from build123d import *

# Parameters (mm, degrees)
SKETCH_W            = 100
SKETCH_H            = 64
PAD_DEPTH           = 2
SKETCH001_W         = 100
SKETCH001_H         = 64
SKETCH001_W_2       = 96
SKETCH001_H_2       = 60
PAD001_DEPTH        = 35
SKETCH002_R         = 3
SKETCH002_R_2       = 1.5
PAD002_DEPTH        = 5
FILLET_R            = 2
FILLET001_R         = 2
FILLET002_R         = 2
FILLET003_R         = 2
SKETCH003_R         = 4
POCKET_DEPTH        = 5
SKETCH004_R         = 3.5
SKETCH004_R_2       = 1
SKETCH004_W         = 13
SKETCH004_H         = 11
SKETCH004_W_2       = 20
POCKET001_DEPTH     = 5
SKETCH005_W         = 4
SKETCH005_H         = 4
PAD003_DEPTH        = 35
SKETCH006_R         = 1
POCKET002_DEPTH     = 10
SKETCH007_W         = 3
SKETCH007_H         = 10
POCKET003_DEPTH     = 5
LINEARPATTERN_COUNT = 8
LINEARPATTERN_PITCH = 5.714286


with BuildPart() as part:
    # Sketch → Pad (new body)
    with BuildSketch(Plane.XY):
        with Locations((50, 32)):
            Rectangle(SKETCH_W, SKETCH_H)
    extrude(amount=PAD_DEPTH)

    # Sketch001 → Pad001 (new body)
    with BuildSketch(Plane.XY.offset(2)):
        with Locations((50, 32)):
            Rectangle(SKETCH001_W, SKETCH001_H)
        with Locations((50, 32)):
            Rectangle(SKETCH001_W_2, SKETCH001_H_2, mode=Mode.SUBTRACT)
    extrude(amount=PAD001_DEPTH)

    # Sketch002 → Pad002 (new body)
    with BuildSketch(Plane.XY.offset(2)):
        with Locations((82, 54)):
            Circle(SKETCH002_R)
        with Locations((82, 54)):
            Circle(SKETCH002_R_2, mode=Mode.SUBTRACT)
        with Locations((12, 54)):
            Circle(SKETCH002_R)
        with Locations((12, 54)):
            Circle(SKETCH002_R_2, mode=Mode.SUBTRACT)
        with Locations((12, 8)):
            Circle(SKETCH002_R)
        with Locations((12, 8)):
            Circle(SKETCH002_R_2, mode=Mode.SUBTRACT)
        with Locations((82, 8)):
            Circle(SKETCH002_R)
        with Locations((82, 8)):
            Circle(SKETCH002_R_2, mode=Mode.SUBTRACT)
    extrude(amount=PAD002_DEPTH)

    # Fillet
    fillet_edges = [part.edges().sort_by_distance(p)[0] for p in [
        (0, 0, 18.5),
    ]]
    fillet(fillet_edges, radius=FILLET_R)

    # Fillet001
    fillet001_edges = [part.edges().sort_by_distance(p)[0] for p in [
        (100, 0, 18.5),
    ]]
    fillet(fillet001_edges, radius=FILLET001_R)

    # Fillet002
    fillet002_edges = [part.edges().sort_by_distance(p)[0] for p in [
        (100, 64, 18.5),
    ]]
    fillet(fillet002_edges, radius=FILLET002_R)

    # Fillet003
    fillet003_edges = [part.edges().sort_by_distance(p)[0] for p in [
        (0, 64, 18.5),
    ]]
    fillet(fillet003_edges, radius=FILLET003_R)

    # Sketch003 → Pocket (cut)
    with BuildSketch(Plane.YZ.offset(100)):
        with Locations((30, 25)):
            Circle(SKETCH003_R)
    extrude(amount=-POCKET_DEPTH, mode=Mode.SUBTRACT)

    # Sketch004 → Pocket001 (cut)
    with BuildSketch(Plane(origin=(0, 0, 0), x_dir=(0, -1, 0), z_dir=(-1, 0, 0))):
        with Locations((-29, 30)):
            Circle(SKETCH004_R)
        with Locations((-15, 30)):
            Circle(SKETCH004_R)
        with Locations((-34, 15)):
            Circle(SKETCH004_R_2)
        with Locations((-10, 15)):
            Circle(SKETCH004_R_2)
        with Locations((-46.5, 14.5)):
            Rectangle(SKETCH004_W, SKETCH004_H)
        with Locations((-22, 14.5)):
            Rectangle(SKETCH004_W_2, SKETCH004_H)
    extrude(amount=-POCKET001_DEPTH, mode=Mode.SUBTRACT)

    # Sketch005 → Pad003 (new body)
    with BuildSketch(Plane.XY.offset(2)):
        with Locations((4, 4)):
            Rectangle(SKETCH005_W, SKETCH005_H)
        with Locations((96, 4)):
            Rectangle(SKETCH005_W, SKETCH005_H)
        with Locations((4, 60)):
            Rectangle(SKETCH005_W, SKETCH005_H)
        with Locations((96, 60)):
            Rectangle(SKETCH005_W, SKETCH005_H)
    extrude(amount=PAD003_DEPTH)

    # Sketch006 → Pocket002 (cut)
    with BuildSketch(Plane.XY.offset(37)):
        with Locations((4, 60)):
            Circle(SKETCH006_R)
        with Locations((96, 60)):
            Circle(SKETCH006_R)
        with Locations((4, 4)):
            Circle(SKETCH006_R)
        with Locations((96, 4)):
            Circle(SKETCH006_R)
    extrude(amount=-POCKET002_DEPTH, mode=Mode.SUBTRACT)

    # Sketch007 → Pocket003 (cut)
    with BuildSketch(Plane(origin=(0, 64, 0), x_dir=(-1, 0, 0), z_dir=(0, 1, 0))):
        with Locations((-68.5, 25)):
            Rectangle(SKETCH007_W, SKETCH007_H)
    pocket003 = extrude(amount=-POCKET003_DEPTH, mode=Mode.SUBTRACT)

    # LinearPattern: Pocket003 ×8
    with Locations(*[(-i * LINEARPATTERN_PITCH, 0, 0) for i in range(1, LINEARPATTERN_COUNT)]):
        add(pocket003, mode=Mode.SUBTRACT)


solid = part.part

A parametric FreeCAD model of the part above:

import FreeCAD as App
import Part
import Sketcher
from FreeCAD import Vector


def edges_at(feature, points):
    """Names of the edges that pass closest to the given points."""
    edges = feature.Shape.Edges
    near = lambda p: min(range(len(edges)), key=lambda i: edges[i].distToShape(Part.Vertex(*p))[0])
    return sorted({f"Edge{near(p) + 1}" for p in points})

doc = App.newDocument("Part")
body = doc.addObject("PartDesign::Body", "Body")

# Sketch on XY plane
sketch1 = doc.addObject("Sketcher::SketchObject", "Sketch")
body.addObject(sketch1)
sketch1.AttachmentSupport = (doc.XY_Plane, [""])
sketch1.MapMode = "FlatFace"
sketch1.addGeometry([
    Part.LineSegment(Vector(0, 64, 0), Vector(0, 0, 0)),
    Part.LineSegment(Vector(0, 0, 0), Vector(100, 0, 0)),
    Part.LineSegment(Vector(100, 0, 0), Vector(100, 64, 0)),
    Part.LineSegment(Vector(100, 64, 0), Vector(0, 64, 0)),
], False)
sketch1.addConstraint([
    Sketcher.Constraint("Coincident", 0, 2, 1, 1),
    Sketcher.Constraint("Coincident", 1, 2, 2, 1),
    Sketcher.Constraint("Coincident", 2, 2, 3, 1),
    Sketcher.Constraint("Coincident", 3, 2, 0, 1),
    Sketcher.Constraint("Vertical", 0),
    Sketcher.Constraint("Horizontal", 1),
    Sketcher.Constraint("Vertical", 2),
    Sketcher.Constraint("Horizontal", 3),
    Sketcher.Constraint("Coincident", 0, 2, -1, 1),
    Sketcher.Constraint("DistanceX", 1, 1, 1, 2, 100.0),
    Sketcher.Constraint("DistanceY", 0, 2, 0, 1, 64.0),
])
pad1 = doc.addObject("PartDesign::Pad", "Pad")
body.addObject(pad1)
pad1.Profile = sketch1
pad1.Length = 2

# Sketch on XY plane
sketch2 = doc.addObject("Sketcher::SketchObject", "Sketch001")
body.addObject(sketch2)
sketch2.AttachmentSupport = (doc.XY_Plane, [""])
sketch2.MapMode = "FlatFace"
sketch2.AttachmentOffset = App.Placement(Vector(0, 0, 2), App.Rotation())
sketch2.addGeometry([
    Part.LineSegment(Vector(0, 64, 0), Vector(0, 0, 0)),  # 0
    Part.LineSegment(Vector(0, 0, 0), Vector(100, 0, 0)),  # 1
    Part.LineSegment(Vector(100, 0, 0), Vector(100, 64, 0)),  # 2
    Part.LineSegment(Vector(100, 64, 0), Vector(0, 64, 0)),  # 3
    Part.LineSegment(Vector(98, 2, 0), Vector(2, 2, 0)),  # 4
    Part.LineSegment(Vector(2, 2, 0), Vector(2, 62, 0)),  # 5
    Part.LineSegment(Vector(2, 62, 0), Vector(98, 62, 0)),  # 6
    Part.LineSegment(Vector(98, 62, 0), Vector(98, 2, 0)),  # 7
], False)
sketch2.addConstraint([
    Sketcher.Constraint("Coincident", 0, 2, 1, 1),
    Sketcher.Constraint("Coincident", 1, 2, 2, 1),
    Sketcher.Constraint("Coincident", 2, 2, 3, 1),
    Sketcher.Constraint("Coincident", 3, 2, 0, 1),
    Sketcher.Constraint("Coincident", 4, 2, 5, 1),
    Sketcher.Constraint("Coincident", 5, 2, 6, 1),
    Sketcher.Constraint("Coincident", 6, 2, 7, 1),
    Sketcher.Constraint("Coincident", 7, 2, 4, 1),
    Sketcher.Constraint("Vertical", 0),
    Sketcher.Constraint("Horizontal", 1),
    Sketcher.Constraint("Vertical", 2),
    Sketcher.Constraint("Horizontal", 3),
    Sketcher.Constraint("Horizontal", 4),
    Sketcher.Constraint("Vertical", 5),
    Sketcher.Constraint("Horizontal", 6),
    Sketcher.Constraint("Vertical", 7),
    Sketcher.Constraint("Coincident", 0, 2, -1, 1),
    Sketcher.Constraint("DistanceX", 1, 1, 1, 2, 100.0),
    Sketcher.Constraint("DistanceX", 4, 2, 4, 1, 96.0),
    Sketcher.Constraint("DistanceY", 0, 2, 0, 1, 64.0),
    Sketcher.Constraint("DistanceY", 5, 1, 5, 2, 60.0),
    Sketcher.Constraint("DistanceX", -1, 1, 4, 2, 2.0),
    Sketcher.Constraint("DistanceY", -1, 1, 4, 2, 2.0),
])
pad2 = doc.addObject("PartDesign::Pad", "Pad001")
body.addObject(pad2)
pad2.Profile = sketch2
pad2.Length = 35

# Sketch on XY plane
sketch3 = doc.addObject("Sketcher::SketchObject", "Sketch002")
body.addObject(sketch3)
sketch3.AttachmentSupport = (doc.XY_Plane, [""])
sketch3.MapMode = "FlatFace"
sketch3.AttachmentOffset = App.Placement(Vector(0, 0, 2), App.Rotation())
sketch3.addGeometry([
    Part.Circle(Vector(82, 54, 0), Vector(0, 0, 1), 3),  # 0
    Part.Circle(Vector(82, 54, 0), Vector(0, 0, 1), 1.5),  # 1
    Part.Circle(Vector(12, 54, 0), Vector(0, 0, 1), 3),  # 2
    Part.Circle(Vector(12, 54, 0), Vector(0, 0, 1), 1.5),  # 3
    Part.Circle(Vector(12, 8, 0), Vector(0, 0, 1), 3),  # 4
    Part.Circle(Vector(12, 8, 0), Vector(0, 0, 1), 1.5),  # 5
    Part.Circle(Vector(82, 8, 0), Vector(0, 0, 1), 3),  # 6
    Part.Circle(Vector(82, 8, 0), Vector(0, 0, 1), 1.5),  # 7
], False)
sketch3.addConstraint([
    Sketcher.Constraint("Coincident", 1, 3, 0, 3),
    Sketcher.Constraint("Coincident", 3, 3, 2, 3),
    Sketcher.Constraint("Coincident", 5, 3, 4, 3),
    Sketcher.Constraint("Coincident", 7, 3, 6, 3),
    Sketcher.Constraint("Equal", 0, 2),
    Sketcher.Constraint("Equal", 1, 3),
    Sketcher.Constraint("Equal", 2, 4),
    Sketcher.Constraint("Equal", 3, 5),
    Sketcher.Constraint("Equal", 4, 6),
    Sketcher.Constraint("Equal", 5, 7),
    Sketcher.Constraint("Horizontal", 1, 3, 2, 3),
    Sketcher.Constraint("Horizontal", 5, 3, 6, 3),
    Sketcher.Constraint("Vertical", 3, 3, 4, 3),
    Sketcher.Constraint("Vertical", 1, 3, 6, 3),
    Sketcher.Constraint("Diameter", 0, 6.0),
    Sketcher.Constraint("Diameter", 1, 3.0),
    Sketcher.Constraint("DistanceX", -1, 1, 0, 3, 82.0),
    Sketcher.Constraint("DistanceY", -1, 1, 0, 3, 54.0),
    Sketcher.Constraint("DistanceX", -1, 1, 2, 3, 12.0),
    Sketcher.Constraint("DistanceY", -1, 1, 4, 3, 8.0),
])
pad3 = doc.addObject("PartDesign::Pad", "Pad002")
body.addObject(pad3)
pad3.Profile = sketch3
pad3.Length = 5
doc.recompute()

fillet = doc.addObject("PartDesign::Fillet", "Fillet")
body.addObject(fillet)
fillet.Base = (pad3, edges_at(pad3, [(0, 0, 18.5)]))
fillet.Radius = 2
doc.recompute()

fillet2 = doc.addObject("PartDesign::Fillet", "Fillet001")
body.addObject(fillet2)
fillet2.Base = (fillet, edges_at(fillet, [(100, 0, 18.5)]))
fillet2.Radius = 2
doc.recompute()

fillet3 = doc.addObject("PartDesign::Fillet", "Fillet002")
body.addObject(fillet3)
fillet3.Base = (fillet2, edges_at(fillet2, [(100, 64, 18.5)]))
fillet3.Radius = 2
doc.recompute()

fillet4 = doc.addObject("PartDesign::Fillet", "Fillet003")
body.addObject(fillet4)
fillet4.Base = (fillet3, edges_at(fillet3, [(0, 64, 18.5)]))
fillet4.Radius = 2

# Sketch on YZ plane
sketch4 = doc.addObject("Sketcher::SketchObject", "Sketch003")
body.addObject(sketch4)
sketch4.AttachmentSupport = (doc.YZ_Plane, [""])
sketch4.MapMode = "FlatFace"
sketch4.AttachmentOffset = App.Placement(Vector(0, 0, 100), App.Rotation())
sketch4.addGeometry(Part.Circle(Vector(30, 25, 0), Vector(0, 0, 1), 4), False)
sketch4.addConstraint([
    Sketcher.Constraint("Diameter", 0, 8.0),
    Sketcher.Constraint("DistanceX", -1, 1, 0, 3, 30.0),
    Sketcher.Constraint("DistanceY", -1, 1, 0, 3, 25.0),
])
pocket1 = doc.addObject("PartDesign::Pocket", "Pocket")
body.addObject(pocket1)
pocket1.Profile = sketch4
pocket1.Length = 5

# Sketch on YZ plane
sketch5 = doc.addObject("Sketcher::SketchObject", "Sketch004")
body.addObject(sketch5)
sketch5.AttachmentSupport = (doc.YZ_Plane, [""])
sketch5.MapMode = "FlatFace"
sketch5.addGeometry([
    Part.Circle(Vector(29, 30, 0), Vector(0, 0, 1), 3.5),  # 0
    Part.Circle(Vector(15, 30, 0), Vector(0, 0, 1), 3.5),  # 1
    Part.Circle(Vector(34, 15, 0), Vector(0, 0, 1), 1),  # 2
    Part.Circle(Vector(10, 15, 0), Vector(0, 0, 1), 1),  # 3
    Part.LineSegment(Vector(53, 20, 0), Vector(53, 9, 0)),  # 4
    Part.LineSegment(Vector(53, 9, 0), Vector(40, 9, 0)),  # 5
    Part.LineSegment(Vector(40, 9, 0), Vector(40, 20, 0)),  # 6
    Part.LineSegment(Vector(40, 20, 0), Vector(53, 20, 0)),  # 7
    Part.LineSegment(Vector(32, 20, 0), Vector(32, 9, 0)),  # 8
    Part.LineSegment(Vector(32, 9, 0), Vector(12, 9, 0)),  # 9
    Part.LineSegment(Vector(12, 9, 0), Vector(12, 20, 0)),  # 10
    Part.LineSegment(Vector(12, 20, 0), Vector(32, 20, 0)),  # 11
], False)
sketch5.addConstraint([
    Sketcher.Constraint("Coincident", 4, 2, 5, 1),
    Sketcher.Constraint("Coincident", 5, 2, 6, 1),
    Sketcher.Constraint("Coincident", 6, 2, 7, 1),
    Sketcher.Constraint("Coincident", 7, 2, 4, 1),
    Sketcher.Constraint("Coincident", 8, 2, 9, 1),
    Sketcher.Constraint("Coincident", 9, 2, 10, 1),
    Sketcher.Constraint("Coincident", 10, 2, 11, 1),
    Sketcher.Constraint("Coincident", 11, 2, 8, 1),
    Sketcher.Constraint("Vertical", 4),
    Sketcher.Constraint("Horizontal", 5),
    Sketcher.Constraint("Vertical", 6),
    Sketcher.Constraint("Horizontal", 7),
    Sketcher.Constraint("Vertical", 8),
    Sketcher.Constraint("Horizontal", 9),
    Sketcher.Constraint("Vertical", 10),
    Sketcher.Constraint("Horizontal", 11),
    Sketcher.Constraint("Equal", 0, 1),
    Sketcher.Constraint("Equal", 2, 3),
    Sketcher.Constraint("Horizontal", 0, 3, 1, 3),
    Sketcher.Constraint("Horizontal", 2, 3, 3, 3),
    Sketcher.Constraint("Horizontal", 5, 2, 8, 2),
    Sketcher.Constraint("Horizontal", 7, 2, 10, 2),
    Sketcher.Constraint("Diameter", 0, 7.0),
    Sketcher.Constraint("Diameter", 2, 2.0),
    Sketcher.Constraint("DistanceX", 5, 2, 5, 1, 13.0),
    Sketcher.Constraint("DistanceX", 9, 2, 9, 1, 20.0),
    Sketcher.Constraint("DistanceY", 4, 2, 4, 1, 11.0),
    Sketcher.Constraint("DistanceX", -1, 1, 0, 3, 29.0),
    Sketcher.Constraint("DistanceY", -1, 1, 0, 3, 30.0),
    Sketcher.Constraint("DistanceX", -1, 1, 1, 3, 15.0),
    Sketcher.Constraint("DistanceX", -1, 1, 2, 3, 34.0),
    Sketcher.Constraint("DistanceY", -1, 1, 2, 3, 15.0),
    Sketcher.Constraint("DistanceX", -1, 1, 3, 3, 10.0),
    Sketcher.Constraint("DistanceX", -1, 1, 4, 2, 53.0),
    Sketcher.Constraint("DistanceY", -1, 1, 4, 2, 9.0),
    Sketcher.Constraint("DistanceX", -1, 1, 8, 2, 32.0),
])
pocket2 = doc.addObject("PartDesign::Pocket", "Pocket001")
body.addObject(pocket2)
pocket2.Profile = sketch5
pocket2.Length = 5
pocket2.Reversed = True

# Sketch on XY plane
sketch6 = doc.addObject("Sketcher::SketchObject", "Sketch005")
body.addObject(sketch6)
sketch6.AttachmentSupport = (doc.XY_Plane, [""])
sketch6.MapMode = "FlatFace"
sketch6.AttachmentOffset = App.Placement(Vector(0, 0, 2), App.Rotation())
sketch6.addGeometry([
    Part.LineSegment(Vector(2, 6, 0), Vector(2, 2, 0)),  # 0
    Part.LineSegment(Vector(2, 2, 0), Vector(6, 2, 0)),  # 1
    Part.LineSegment(Vector(6, 2, 0), Vector(6, 6, 0)),  # 2
    Part.LineSegment(Vector(6, 6, 0), Vector(2, 6, 0)),  # 3
    Part.LineSegment(Vector(94, 6, 0), Vector(94, 2, 0)),  # 4
    Part.LineSegment(Vector(94, 2, 0), Vector(98, 2, 0)),  # 5
    Part.LineSegment(Vector(98, 2, 0), Vector(98, 6, 0)),  # 6
    Part.LineSegment(Vector(98, 6, 0), Vector(94, 6, 0)),  # 7
    Part.LineSegment(Vector(2, 62, 0), Vector(2, 58, 0)),  # 8
    Part.LineSegment(Vector(2, 58, 0), Vector(6, 58, 0)),  # 9
    Part.LineSegment(Vector(6, 58, 0), Vector(6, 62, 0)),  # 10
    Part.LineSegment(Vector(6, 62, 0), Vector(2, 62, 0)),  # 11
    Part.LineSegment(Vector(94, 62, 0), Vector(94, 58, 0)),  # 12
    Part.LineSegment(Vector(94, 58, 0), Vector(98, 58, 0)),  # 13
    Part.LineSegment(Vector(98, 58, 0), Vector(98, 62, 0)),  # 14
    Part.LineSegment(Vector(98, 62, 0), Vector(94, 62, 0)),  # 15
], False)
sketch6.addConstraint([
    Sketcher.Constraint("Coincident", 0, 2, 1, 1),
    Sketcher.Constraint("Coincident", 1, 2, 2, 1),
    Sketcher.Constraint("Coincident", 2, 2, 3, 1),
    Sketcher.Constraint("Coincident", 3, 2, 0, 1),
    Sketcher.Constraint("Coincident", 4, 2, 5, 1),
    Sketcher.Constraint("Coincident", 5, 2, 6, 1),
    Sketcher.Constraint("Coincident", 6, 2, 7, 1),
    Sketcher.Constraint("Coincident", 7, 2, 4, 1),
    Sketcher.Constraint("Coincident", 8, 2, 9, 1),
    Sketcher.Constraint("Coincident", 9, 2, 10, 1),
    Sketcher.Constraint("Coincident", 10, 2, 11, 1),
    Sketcher.Constraint("Coincident", 11, 2, 8, 1),
    Sketcher.Constraint("Coincident", 12, 2, 13, 1),
    Sketcher.Constraint("Coincident", 13, 2, 14, 1),
    Sketcher.Constraint("Coincident", 14, 2, 15, 1),
    Sketcher.Constraint("Coincident", 15, 2, 12, 1),
    Sketcher.Constraint("Vertical", 0),
    Sketcher.Constraint("Horizontal", 1),
    Sketcher.Constraint("Vertical", 2),
    Sketcher.Constraint("Horizontal", 3),
    Sketcher.Constraint("Vertical", 4),
    Sketcher.Constraint("Horizontal", 5),
    Sketcher.Constraint("Vertical", 6),
    Sketcher.Constraint("Horizontal", 7),
    Sketcher.Constraint("Vertical", 8),
    Sketcher.Constraint("Horizontal", 9),
    Sketcher.Constraint("Vertical", 10),
    Sketcher.Constraint("Horizontal", 11),
    Sketcher.Constraint("Vertical", 12),
    Sketcher.Constraint("Horizontal", 13),
    Sketcher.Constraint("Vertical", 14),
    Sketcher.Constraint("Horizontal", 15),
    Sketcher.Constraint("Horizontal", 1, 2, 4, 2),
    Sketcher.Constraint("Horizontal", 3, 2, 6, 2),
    Sketcher.Constraint("Horizontal", 9, 2, 12, 2),
    Sketcher.Constraint("Horizontal", 11, 2, 14, 2),
    Sketcher.Constraint("Vertical", 3, 2, 8, 2),
    Sketcher.Constraint("Vertical", 2, 2, 9, 2),
    Sketcher.Constraint("Vertical", 7, 2, 12, 2),
    Sketcher.Constraint("Vertical", 6, 2, 13, 2),
    Sketcher.Constraint("Equal", 3, 5),
    Sketcher.Constraint("Equal", 15, 0),
    Sketcher.Constraint("Equal", 6, 8),
    Sketcher.Constraint("DistanceX", 1, 1, 1, 2, 4.0),
    Sketcher.Constraint("DistanceX", -1, 1, 0, 2, 2.0),
    Sketcher.Constraint("DistanceY", -1, 1, 0, 2, 2.0),
    Sketcher.Constraint("DistanceX", -1, 1, 4, 2, 94.0),
    Sketcher.Constraint("DistanceY", -1, 1, 8, 2, 58.0),
])
pad4 = doc.addObject("PartDesign::Pad", "Pad003")
body.addObject(pad4)
pad4.Profile = sketch6
pad4.Length = 35

# Sketch on XY plane
sketch7 = doc.addObject("Sketcher::SketchObject", "Sketch006")
body.addObject(sketch7)
sketch7.AttachmentSupport = (doc.XY_Plane, [""])
sketch7.MapMode = "FlatFace"
sketch7.AttachmentOffset = App.Placement(Vector(0, 0, 37), App.Rotation())
sketch7.addGeometry([
    Part.Circle(Vector(4, 60, 0), Vector(0, 0, 1), 1),
    Part.Circle(Vector(96, 60, 0), Vector(0, 0, 1), 1),
    Part.Circle(Vector(4, 4, 0), Vector(0, 0, 1), 1),
    Part.Circle(Vector(96, 4, 0), Vector(0, 0, 1), 1),
], False)
sketch7.addConstraint([
    Sketcher.Constraint("Equal", 0, 1),
    Sketcher.Constraint("Equal", 1, 2),
    Sketcher.Constraint("Equal", 2, 3),
    Sketcher.Constraint("Horizontal", 0, 3, 1, 3),
    Sketcher.Constraint("Horizontal", 2, 3, 3, 3),
    Sketcher.Constraint("Vertical", 0, 3, 2, 3),
    Sketcher.Constraint("Vertical", 1, 3, 3, 3),
    Sketcher.Constraint("Diameter", 0, 2.0),
    Sketcher.Constraint("DistanceX", -1, 1, 0, 3, 4.0),
    Sketcher.Constraint("DistanceY", -1, 1, 0, 3, 60.0),
    Sketcher.Constraint("DistanceX", -1, 1, 1, 3, 96.0),
    Sketcher.Constraint("DistanceY", -1, 1, 2, 3, 4.0),
])
pocket3 = doc.addObject("PartDesign::Pocket", "Pocket002")
body.addObject(pocket3)
pocket3.Profile = sketch7
pocket3.Length = 10

# Sketch on XZ plane
sketch8 = doc.addObject("Sketcher::SketchObject", "Sketch007")
body.addObject(sketch8)
sketch8.AttachmentSupport = (doc.XZ_Plane, [""])
sketch8.MapMode = "FlatFace"
sketch8.AttachmentOffset = App.Placement(Vector(0, 0, -64), App.Rotation())
sketch8.addGeometry([
    Part.LineSegment(Vector(70, 30, 0), Vector(70, 20, 0)),
    Part.LineSegment(Vector(70, 20, 0), Vector(67, 20, 0)),
    Part.LineSegment(Vector(67, 20, 0), Vector(67, 30, 0)),
    Part.LineSegment(Vector(67, 30, 0), Vector(70, 30, 0)),
], False)
sketch8.addConstraint([
    Sketcher.Constraint("Coincident", 0, 2, 1, 1),
    Sketcher.Constraint("Coincident", 1, 2, 2, 1),
    Sketcher.Constraint("Coincident", 2, 2, 3, 1),
    Sketcher.Constraint("Coincident", 3, 2, 0, 1),
    Sketcher.Constraint("Vertical", 0),
    Sketcher.Constraint("Horizontal", 1),
    Sketcher.Constraint("Vertical", 2),
    Sketcher.Constraint("Horizontal", 3),
    Sketcher.Constraint("DistanceX", 1, 2, 1, 1, 3.0),
    Sketcher.Constraint("DistanceY", 0, 2, 0, 1, 10.0),
    Sketcher.Constraint("DistanceX", -1, 1, 0, 2, 70.0),
    Sketcher.Constraint("DistanceY", -1, 1, 0, 2, 20.0),
])
pocket4 = doc.addObject("PartDesign::Pocket", "Pocket003")
body.addObject(pocket4)
pocket4.Profile = sketch8
pocket4.Length = 5
pocket4.Reversed = True
doc.recompute()

linearpattern = doc.addObject("PartDesign::LinearPattern", "LinearPattern")
body.addObject(linearpattern)
linearpattern.Originals = [pocket4]
linearpattern.Direction = (doc.X_Axis, [""])
linearpattern.Mode = "offset"
linearpattern.Offset = 5.714286
linearpattern.Occurrences = 8
linearpattern.Reversed = True
body.Tip = linearpattern

doc.recompute()
